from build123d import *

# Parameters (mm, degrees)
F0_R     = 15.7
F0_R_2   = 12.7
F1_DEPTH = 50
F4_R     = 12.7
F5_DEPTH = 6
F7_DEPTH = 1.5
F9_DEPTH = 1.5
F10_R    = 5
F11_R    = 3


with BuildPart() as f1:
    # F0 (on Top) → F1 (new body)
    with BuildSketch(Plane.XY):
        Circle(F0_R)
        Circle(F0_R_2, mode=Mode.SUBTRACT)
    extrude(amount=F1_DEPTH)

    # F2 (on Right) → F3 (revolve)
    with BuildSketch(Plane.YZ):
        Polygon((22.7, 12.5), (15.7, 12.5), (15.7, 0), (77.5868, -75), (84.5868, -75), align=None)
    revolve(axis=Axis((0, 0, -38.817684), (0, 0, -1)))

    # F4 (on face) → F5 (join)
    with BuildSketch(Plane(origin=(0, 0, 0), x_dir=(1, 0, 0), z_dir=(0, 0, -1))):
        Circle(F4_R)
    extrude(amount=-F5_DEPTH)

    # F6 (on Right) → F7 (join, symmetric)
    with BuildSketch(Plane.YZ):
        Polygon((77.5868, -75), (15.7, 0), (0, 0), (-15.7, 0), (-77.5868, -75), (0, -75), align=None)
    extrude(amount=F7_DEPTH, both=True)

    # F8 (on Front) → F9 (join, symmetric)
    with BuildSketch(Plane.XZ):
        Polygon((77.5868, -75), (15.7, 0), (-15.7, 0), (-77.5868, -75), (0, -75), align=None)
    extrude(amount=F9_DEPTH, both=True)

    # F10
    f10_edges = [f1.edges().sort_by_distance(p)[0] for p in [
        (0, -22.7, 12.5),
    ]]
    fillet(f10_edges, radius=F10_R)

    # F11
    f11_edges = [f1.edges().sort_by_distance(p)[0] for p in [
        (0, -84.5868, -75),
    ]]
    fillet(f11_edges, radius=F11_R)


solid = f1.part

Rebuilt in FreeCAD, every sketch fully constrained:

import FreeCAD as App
import Part
import Sketcher
from FreeCAD import Vector
Q = App.Units.Quantity


def edges_at(feature, points):
    """Names of the edges that pass closest to the given points."""
    edges = feature.Shape.Edges
    near = lambda p: min(range(len(edges)), key=lambda i: edges[i].distToShape(Part.Vertex(*p))[0])
    return sorted({f"Edge{near(p) + 1}" for p in points})


def add_polygon(sketch, points):
    """Adds a closed chain of lines whose ends are joined by coincident constraints."""
    first, n = sketch.GeometryCount, len(points)
    for a, b in zip(points, points[1:] + points[:1]):
        sketch.addGeometry(Part.LineSegment(App.Vector(*a, 0), App.Vector(*b, 0)), False)
    for i in range(n):
        sketch.addConstraint(Sketcher.Constraint("Coincident", first + i, 2, first + (i + 1) % n, 1))

doc = App.newDocument("Part")
body = doc.addObject("PartDesign::Body", "Body")

# Sketch on XY plane
sketch1 = body.newObject("Sketcher::SketchObject", "Sketch")
sketch1.AttachmentSupport = (doc.getObject("XY_Plane"), [""])
sketch1.MapMode = "FlatFace"
sketch1.addGeometry(Part.Circle(Vector(0, 0, 0), Vector(0, 0, 1), 16), False)
sketch1.addGeometry(Part.Circle(Vector(0, 0, 0), Vector(0, 0, 1), 13), False)
sketch1.addConstraint(Sketcher.Constraint("Coincident", 0, 3, -1, 1))
sketch1.addConstraint(Sketcher.Constraint("Coincident", 1, 3, -1, 1))
sketch1.addConstraint(Sketcher.Constraint("Diameter", 0, Q("31.4 mm")))
sketch1.addConstraint(Sketcher.Constraint("Diameter", 1, Q("25.4 mm")))
pad1 = body.newObject("PartDesign::Pad", "Pad")
pad1.Profile = sketch1
pad1.Length = 50

# Sketch on YZ plane
sketch2 = body.newObject("Sketcher::SketchObject", "Sketch001")
sketch2.AttachmentSupport = (doc.getObject("YZ_Plane"), [""])
sketch2.MapMode = "FlatFace"
add_polygon(sketch2, [(23, 12), (16, 12), (16, 0), (78, -75), (85, -75)])  # lines 0-4
sketch2.addConstraint(Sketcher.Constraint("Horizontal", 0))
sketch2.addConstraint(Sketcher.Constraint("Vertical", 1))
sketch2.addConstraint(Sketcher.Constraint("Horizontal", 3))
sketch2.addConstraint(Sketcher.Constraint("PointOnObject", 1, 2, -1))
sketch2.addConstraint(Sketcher.Constraint("Equal", 0, 3))
sketch2.addConstraint(Sketcher.Constraint("DistanceX", 0, 2, 0, 1, Q("7 mm")))
sketch2.addConstraint(Sketcher.Constraint("DistanceY", 1, 2, 1, 1, Q("12.5 mm")))
sketch2.addConstraint(Sketcher.Constraint("DistanceY", 2, 2, -1, 1, Q("75 mm")))
sketch2.addConstraint(Sketcher.Constraint("DistanceX", -1, 1, 0, 2, Q("15.7 mm")))
sketch2.addConstraint(Sketcher.Constraint("Distance", 2, Q("97.236701 mm")))
revolution = body.newObject("PartDesign::Revolution", "Revolution")
revolution.Profile = sketch2
revolution.ReferenceAxis = (sketch2, ["V_Axis"])
revolution.Angle = 360

# Sketch on XY plane
sketch3 = body.newObject("Sketcher::SketchObject", "Sketch002")
sketch3.AttachmentSupport = (doc.getObject("XY_Plane"), [""])
sketch3.MapMode = "FlatFace"
sketch3.addGeometry(Part.Circle(Vector(0, 0, 0), Vector(0, 0, 1), 13), False)
sketch3.addConstraint(Sketcher.Constraint("Coincident", 0, 3, -1, 1))
sketch3.addConstraint(Sketcher.Constraint("Diameter", 0, Q("25.4 mm")))
pad2 = body.newObject("PartDesign::Pad", "Pad001")
pad2.Profile = sketch3
pad2.Length = 6

# Sketch on YZ plane
sketch4 = body.newObject("Sketcher::SketchObject", "Sketch003")
sketch4.AttachmentSupport = (doc.getObject("YZ_Plane"), [""])
sketch4.MapMode = "FlatFace"
add_polygon(sketch4, [(78, -75), (16, 0), (-16, 0), (-78, -75)])  # lines 0-3
sketch4.addConstraint(Sketcher.Constraint("Horizontal", 1))
sketch4.addConstraint(Sketcher.Constraint("Horizontal", 3))
sketch4.addConstraint(Sketcher.Constraint("Symmetric", 0, 2, 1, 2, -1, 1))
sketch4.addConstraint(Sketcher.Constraint("Equal", 0, 2))
sketch4.addConstraint(Sketcher.Constraint("DistanceX", 1, 2, 1, 1, Q("31.4 mm")))
sketch4.addConstraint(Sketcher.Constraint("DistanceY", 2, 2, -1, 1, Q("75 mm")))
sketch4.addConstraint(Sketcher.Constraint("DistanceX", 3, 1, 3, 2, Q("155.1736 mm")))
pad3 = body.newObject("PartDesign::Pad", "Pad002")
pad3.Profile = sketch4
pad3.Length = 3
pad3.Midplane = True

# Sketch on XZ plane
sketch5 = body.newObject("Sketcher::SketchObject", "Sketch004")
sketch5.AttachmentSupport = (doc.getObject("XZ_Plane"), [""])
sketch5.MapMode = "FlatFace"
add_polygon(sketch5, [(78, -75), (16, 0), (-16, 0), (-78, -75)])  # lines 0-3
sketch5.addConstraint(Sketcher.Constraint("Horizontal", 1))
sketch5.addConstraint(Sketcher.Constraint("Horizontal", 3))
sketch5.addConstraint(Sketcher.Constraint("Symmetric", 0, 2, 1, 2, -1, 1))
sketch5.addConstraint(Sketcher.Constraint("Equal", 0, 2))
sketch5.addConstraint(Sketcher.Constraint("DistanceX", 1, 2, 1, 1, Q("31.4 mm")))
sketch5.addConstraint(Sketcher.Constraint("DistanceY", 2, 2, -1, 1, Q("75 mm")))
sketch5.addConstraint(Sketcher.Constraint("DistanceX", 3, 1, 3, 2, Q("155.1736 mm")))
pad4 = body.newObject("PartDesign::Pad", "Pad003")
pad4.Profile = sketch5
pad4.Length = 3
pad4.Midplane = True
doc.recompute()

fillet = body.newObject("PartDesign::Fillet", "Fillet")
fillet.Base = (pad4, edges_at(pad4, [(0, -22.7, 12.5)]))
fillet.Radius = 5
doc.recompute()

fillet2 = body.newObject("PartDesign::Fillet", "Fillet001")
fillet2.Base = (fillet, edges_at(fillet, [(0, -84.587, -75)]))
fillet2.Radius = 3

doc.recompute()
